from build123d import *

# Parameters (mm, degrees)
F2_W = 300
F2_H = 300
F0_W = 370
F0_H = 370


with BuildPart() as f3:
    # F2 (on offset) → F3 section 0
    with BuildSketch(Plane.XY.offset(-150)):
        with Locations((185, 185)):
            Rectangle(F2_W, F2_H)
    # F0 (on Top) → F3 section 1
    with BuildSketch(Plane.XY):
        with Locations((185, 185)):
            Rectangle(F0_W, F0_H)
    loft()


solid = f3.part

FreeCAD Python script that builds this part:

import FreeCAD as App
import Part
import Sketcher

doc = App.newDocument("Part")
body = doc.addObject("PartDesign::Body", "Body")

sketch1 = doc.addObject("Sketcher::SketchObject", "Sketch")
body.addObject(sketch1)
sketch1.AttachmentSupport = (doc.XY_Plane, [""])
sketch1.MapMode = "FlatFace"
sketch1.AttachmentOffset = App.Placement(App.Vector(0, 0, -150), App.Rotation())
sketch1.addGeometry(Part.LineSegment(App.Vector(35, 335, 0), App.Vector(35, 35, 0)), False)
sketch1.addGeometry(Part.LineSegment(App.Vector(35, 35, 0), App.Vector(335, 35, 0)), False)
sketch1.addGeometry(Part.LineSegment(App.Vector(335, 35, 0), App.Vector(335, 335, 0)), False)
sketch1.addGeometry(Part.LineSegment(App.Vector(335, 335, 0), App.Vector(35, 335, 0)), False)
sketch1.addConstraint(Sketcher.Constraint("Coincident", 0, 2, 1, 1))
sketch1.addConstraint(Sketcher.Constraint("Coincident", 1, 2, 2, 1))
sketch1.addConstraint(Sketcher.Constraint("Coincident", 2, 2, 3, 1))
sketch1.addConstraint(Sketcher.Constraint("Coincident", 3, 2, 0, 1))
sketch1.addConstraint(Sketcher.Constraint("Vertical", 0))
sketch1.addConstraint(Sketcher.Constraint("Horizontal", 1))
sketch1.addConstraint(Sketcher.Constraint("Vertical", 2))
sketch1.addConstraint(Sketcher.Constraint("Horizontal", 3))
sketch1.addConstraint(Sketcher.Constraint("Equal", 3, 0))
sketch1.addConstraint(Sketcher.Constraint("DistanceX", 1, 1, 1, 2, 300.0))
sketch1.addConstraint(Sketcher.Constraint("DistanceX", -1, 1, 0, 2, 35.0))
sketch1.addConstraint(Sketcher.Constraint("DistanceY", -1, 1, 0, 2, 35.0))

sketch2 = doc.addObject("Sketcher::SketchObject", "Sketch001")
body.addObject(sketch2)
sketch2.AttachmentSupport = (doc.XY_Plane, [""])
sketch2.MapMode = "FlatFace"
sketch2.addGeometry(Part.LineSegment(App.Vector(0, 370, 0), App.Vector(0, 0, 0)), False)
sketch2.addGeometry(Part.LineSegment(App.Vector(0, 0, 0), App.Vector(370, 0, 0)), False)
sketch2.addGeometry(Part.LineSegment(App.Vector(370, 0, 0), App.Vector(370, 370, 0)), False)
sketch2.addGeometry(Part.LineSegment(App.Vector(370, 370, 0), App.Vector(0, 370, 0)), False)
sketch2.addConstraint(Sketcher.Constraint("Coincident", 0, 2, 1, 1))
sketch2.addConstraint(Sketcher.Constraint("Coincident", 1, 2, 2, 1))
sketch2.addConstraint(Sketcher.Constraint("Coincident", 2, 2, 3, 1))
sketch2.addConstraint(Sketcher.Constraint("Coincident", 3, 2, 0, 1))
sketch2.addConstraint(Sketcher.Constraint("Vertical", 0))
sketch2.addConstraint(Sketcher.Constraint("Horizontal", 1))
sketch2.addConstraint(Sketcher.Constraint("Vertical", 2))
sketch2.addConstraint(Sketcher.Constraint("Horizontal", 3))
sketch2.addConstraint(Sketcher.Constraint("Coincident", 0, 2, -1, 1))
sketch2.addConstraint(Sketcher.Constraint("Equal", 3, 0))
sketch2.addConstraint(Sketcher.Constraint("DistanceX", 1, 1, 1, 2, 370.0))

additiveloft = doc.addObject("PartDesign::AdditiveLoft", "AdditiveLoft")
body.addObject(additiveloft)
additiveloft.Profile = sketch1
additiveloft.Sections = [sketch2]

doc.recompute()
